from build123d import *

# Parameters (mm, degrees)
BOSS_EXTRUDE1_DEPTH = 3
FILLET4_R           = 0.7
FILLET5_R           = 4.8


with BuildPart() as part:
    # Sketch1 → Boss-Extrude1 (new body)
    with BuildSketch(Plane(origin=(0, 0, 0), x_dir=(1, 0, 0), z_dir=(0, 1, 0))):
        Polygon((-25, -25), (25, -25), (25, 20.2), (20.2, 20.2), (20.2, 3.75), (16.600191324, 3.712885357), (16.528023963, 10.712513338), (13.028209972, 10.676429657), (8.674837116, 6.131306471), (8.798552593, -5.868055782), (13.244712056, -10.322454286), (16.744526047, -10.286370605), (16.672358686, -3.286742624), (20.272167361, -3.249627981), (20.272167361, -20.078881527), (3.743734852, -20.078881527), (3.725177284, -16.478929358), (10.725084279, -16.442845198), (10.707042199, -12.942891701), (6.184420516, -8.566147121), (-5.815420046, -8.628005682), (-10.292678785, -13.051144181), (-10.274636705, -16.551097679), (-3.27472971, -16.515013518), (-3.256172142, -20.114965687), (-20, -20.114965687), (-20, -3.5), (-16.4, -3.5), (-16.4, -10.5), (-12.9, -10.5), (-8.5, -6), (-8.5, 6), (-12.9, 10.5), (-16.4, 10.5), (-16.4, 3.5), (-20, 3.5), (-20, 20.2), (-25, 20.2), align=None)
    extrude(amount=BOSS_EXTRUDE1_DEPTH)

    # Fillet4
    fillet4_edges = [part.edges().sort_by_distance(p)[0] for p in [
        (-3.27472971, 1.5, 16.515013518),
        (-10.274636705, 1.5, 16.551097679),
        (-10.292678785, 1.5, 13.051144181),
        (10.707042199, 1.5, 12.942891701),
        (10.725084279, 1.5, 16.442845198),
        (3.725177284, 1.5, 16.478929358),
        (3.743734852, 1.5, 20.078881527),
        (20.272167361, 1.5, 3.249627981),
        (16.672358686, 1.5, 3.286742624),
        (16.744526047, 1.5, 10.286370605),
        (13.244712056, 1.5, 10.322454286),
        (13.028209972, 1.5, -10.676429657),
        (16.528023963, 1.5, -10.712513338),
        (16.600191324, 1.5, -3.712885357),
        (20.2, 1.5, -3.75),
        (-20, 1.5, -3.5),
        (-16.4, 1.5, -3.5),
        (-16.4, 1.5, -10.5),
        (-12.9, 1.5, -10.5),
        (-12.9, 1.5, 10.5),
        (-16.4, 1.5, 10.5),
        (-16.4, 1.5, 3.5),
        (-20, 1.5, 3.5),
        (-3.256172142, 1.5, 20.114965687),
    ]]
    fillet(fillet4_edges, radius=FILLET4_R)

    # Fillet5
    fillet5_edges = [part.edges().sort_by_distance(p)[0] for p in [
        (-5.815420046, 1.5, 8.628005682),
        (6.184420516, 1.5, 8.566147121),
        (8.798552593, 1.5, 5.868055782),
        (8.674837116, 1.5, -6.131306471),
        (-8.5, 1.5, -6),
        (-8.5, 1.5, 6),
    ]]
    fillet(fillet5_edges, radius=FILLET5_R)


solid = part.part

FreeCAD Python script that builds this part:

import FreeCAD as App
import Part
import Sketcher
Q = App.Units.Quantity


def edges_at(feature, points):
    """Names of the edges that pass closest to the given points."""
    edges = feature.Shape.Edges
    near = lambda p: min(range(len(edges)), key=lambda i: edges[i].distToShape(Part.Vertex(*p))[0])
    return sorted({f"Edge{near(p) + 1}" for p in points})

doc = App.newDocument("Part")
body = doc.addObject("PartDesign::Body", "Body")

sketch1 = body.newObject("Sketcher::SketchObject", "Sketch")
sketch1.AttachmentSupport = (doc.getObject("XZ_Plane"), [""])
sketch1.MapMode = "FlatFace"
sketch1.addGeometry(Part.LineSegment(App.Vector(-25, 25, 0), App.Vector(25, 25, 0)), False)
sketch1.addGeometry(Part.LineSegment(App.Vector(25, 25, 0), App.Vector(25, -20.2, 0)), False)
sketch1.addGeometry(Part.LineSegment(App.Vector(25, -20.2, 0), App.Vector(20.2, -20.2, 0)), False)
sketch1.addGeometry(Part.LineSegment(App.Vector(20.2, -20.2, 0), App.Vector(20.2, -3.8, 0)), False)
sketch1.addGeometry(Part.LineSegment(App.Vector(20.2, -3.8, 0), App.Vector(16.6, -3.7, 0)), False)
sketch1.addGeometry(Part.LineSegment(App.Vector(16.6, -3.7, 0), App.Vector(16.5, -10.7, 0)), False)
sketch1.addGeometry(Part.LineSegment(App.Vector(16.5, -10.7, 0), App.Vector(13, -10.7, 0)), False)
sketch1.addGeometry(Part.LineSegment(App.Vector(13, -10.7, 0), App.Vector(8.7, -6.1, 0)), False)
sketch1.addGeometry(Part.LineSegment(App.Vector(8.7, -6.1, 0), App.Vector(8.8, 5.9, 0)), False)
sketch1.addGeometry(Part.LineSegment(App.Vector(8.8, 5.9, 0), App.Vector(13.2, 10.3, 0)), False)
sketch1.addGeometry(Part.LineSegment(App.Vector(13.2, 10.3, 0), App.Vector(16.7, 10.3, 0)), False)
sketch1.addGeometry(Part.LineSegment(App.Vector(16.7, 10.3, 0), App.Vector(16.7, 3.3, 0)), False)
sketch1.addGeometry(Part.LineSegment(App.Vector(16.7, 3.3, 0), App.Vector(20.3, 3.2, 0)), False)
sketch1.addGeometry(Part.LineSegment(App.Vector(20.3, 3.2, 0), App.Vector(20.3, 20.1, 0)), False)
sketch1.addGeometry(Part.LineSegment(App.Vector(20.3, 20.1, 0), App.Vector(3.7, 20.1, 0)), False)
sketch1.addGeometry(Part.LineSegment(App.Vector(3.7, 20.1, 0), App.Vector(3.7, 16.5, 0)), False)
sketch1.addGeometry(Part.LineSegment(App.Vector(3.7, 16.5, 0), App.Vector(10.7, 16.4, 0)), False)
sketch1.addGeometry(Part.LineSegment(App.Vector(10.7, 16.4, 0), App.Vector(10.7, 12.9, 0)), False)
sketch1.addGeometry(Part.LineSegment(App.Vector(10.7, 12.9, 0), App.Vector(6.2, 8.6, 0)), False)
sketch1.addGeometry(Part.LineSegment(App.Vector(6.2, 8.6, 0), App.Vector(-5.8, 8.6, 0)), False)
sketch1.addGeometry(Part.LineSegment(App.Vector(-5.8, 8.6, 0), App.Vector(-10.3, 13.1, 0)), False)
sketch1.addGeometry(Part.LineSegment(App.Vector(-10.3, 13.1, 0), App.Vector(-10.3, 16.6, 0)), False)
sketch1.addGeometry(Part.LineSegment(App.Vector(-10.3, 16.6, 0), App.Vector(-3.3, 16.5, 0)), False)
sketch1.addGeometry(Part.LineSegment(App.Vector(-3.3, 16.5, 0), App.Vector(-3.3, 20.1, 0)), False)
sketch1.addGeometry(Part.LineSegment(App.Vector(-3.3, 20.1, 0), App.Vector(-20, 20.1, 0)), False)
sketch1.addGeometry(Part.LineSegment(App.Vector(-20, 20.1, 0), App.Vector(-20, 3.5, 0)), False)
sketch1.addGeometry(Part.LineSegment(App.Vector(-20, 3.5, 0), App.Vector(-16.4, 3.5, 0)), False)
sketch1.addGeometry(Part.LineSegment(App.Vector(-16.4, 3.5, 0), App.Vector(-16.4, 10.5, 0)), False)
sketch1.addGeometry(Part.LineSegment(App.Vector(-16.4, 10.5, 0), App.Vector(-12.9, 10.5, 0)), False)
sketch1.addGeometry(Part.LineSegment(App.Vector(-12.9, 10.5, 0), App.Vector(-8.5, 6, 0)), False)
sketch1.addGeometry(Part.LineSegment(App.Vector(-8.5, 6, 0), App.Vector(-8.5, -6, 0)), False)
sketch1.addGeometry(Part.LineSegment(App.Vector(-8.5, -6, 0), App.Vector(-12.9, -10.5, 0)), False)
sketch1.addGeometry(Part.LineSegment(App.Vector(-12.9, -10.5, 0), App.Vector(-16.4, -10.5, 0)), False)
sketch1.addGeometry(Part.LineSegment(App.Vector(-16.4, -10.5, 0), App.Vector(-16.4, -3.5, 0)), False)
sketch1.addGeometry(Part.LineSegment(App.Vector(-16.4, -3.5, 0), App.Vector(-20, -3.5, 0)), False)
sketch1.addGeometry(Part.LineSegment(App.Vector(-20, -3.5, 0), App.Vector(-20, -20.2, 0)), False)
sketch1.addGeometry(Part.LineSegment(App.Vector(-20, -20.2, 0), App.Vector(-25, -20.2, 0)), False)
sketch1.addGeometry(Part.LineSegment(App.Vector(-25, -20.2, 0), App.Vector(-25, 25, 0)), False)
sketch1.addConstraint(Sketcher.Constraint("Coincident", 0, 2, 1, 1))
sketch1.addConstraint(Sketcher.Constraint("Coincident", 1, 2, 2, 1))
sketch1.addConstraint(Sketcher.Constraint("Coincident", 2, 2, 3, 1))
sketch1.addConstraint(Sketcher.Constraint("Coincident", 3, 2, 4, 1))
sketch1.addConstraint(Sketcher.Constraint("Coincident", 4, 2, 5, 1))
sketch1.addConstraint(Sketcher.Constraint("Coincident", 5, 2, 6, 1))
sketch1.addConstraint(Sketcher.Constraint("Coincident", 6, 2, 7, 1))
sketch1.addConstraint(Sketcher.Constraint("Coincident", 7, 2, 8, 1))
sketch1.addConstraint(Sketcher.Constraint("Coincident", 8, 2, 9, 1))
sketch1.addConstraint(Sketcher.Constraint("Coincident", 9, 2, 10, 1))
sketch1.addConstraint(Sketcher.Constraint("Coincident", 10, 2, 11, 1))
sketch1.addConstraint(Sketcher.Constraint("Coincident", 11, 2, 12, 1))
sketch1.addConstraint(Sketcher.Constraint("Coincident", 12, 2, 13, 1))
sketch1.addConstraint(Sketcher.Constraint("Coincident", 13, 2, 14, 1))
sketch1.addConstraint(Sketcher.Constraint("Coincident", 14, 2, 15, 1))
sketch1.addConstraint(Sketcher.Constraint("Coincident", 15, 2, 16, 1))
sketch1.addConstraint(Sketcher.Constraint("Coincident", 16, 2, 17, 1))
sketch1.addConstraint(Sketcher.Constraint("Coincident", 17, 2, 18, 1))
sketch1.addConstraint(Sketcher.Constraint("Coincident", 18, 2, 19, 1))
sketch1.addConstraint(Sketcher.Constraint("Coincident", 19, 2, 20, 1))
sketch1.addConstraint(Sketcher.Constraint("Coincident", 20, 2, 21, 1))
sketch1.addConstraint(Sketcher.Constraint("Coincident", 21, 2, 22, 1))
sketch1.addConstraint(Sketcher.Constraint("Coincident", 22, 2, 23, 1))
sketch1.addConstraint(Sketcher.Constraint("Coincident", 23, 2, 24, 1))
sketch1.addConstraint(Sketcher.Constraint("Coincident", 24, 2, 25, 1))
sketch1.addConstraint(Sketcher.Constraint("Coincident", 25, 2, 26, 1))
sketch1.addConstraint(Sketcher.Constraint("Coincident", 26, 2, 27, 1))
sketch1.addConstraint(Sketcher.Constraint("Coincident", 27, 2, 28, 1))
sketch1.addConstraint(Sketcher.Constraint("Coincident", 28, 2, 29, 1))
sketch1.addConstraint(Sketcher.Constraint("Coincident", 29, 2, 30, 1))
sketch1.addConstraint(Sketcher.Constraint("Coincident", 30, 2, 31, 1))
sketch1.addConstraint(Sketcher.Constraint("Coincident", 31, 2, 32, 1))
sketch1.addConstraint(Sketcher.Constraint("Coincident", 32, 2, 33, 1))
sketch1.addConstraint(Sketcher.Constraint("Coincident", 33, 2, 34, 1))
sketch1.addConstraint(Sketcher.Constraint("Coincident", 34, 2, 35, 1))
sketch1.addConstraint(Sketcher.Constraint("Coincident", 35, 2, 36, 1))
sketch1.addConstraint(Sketcher.Constraint("Coincident", 36, 2, 37, 1))
sketch1.addConstraint(Sketcher.Constraint("Coincident", 37, 2, 0, 1))
sketch1.addConstraint(Sketcher.Constraint("Horizontal", 0))
sketch1.addConstraint(Sketcher.Constraint("Vertical", 1))
sketch1.addConstraint(Sketcher.Constraint("Horizontal", 2))
sketch1.addConstraint(Sketcher.Constraint("Vertical", 3))
sketch1.addConstraint(Sketcher.Constraint("Vertical", 13))
sketch1.addConstraint(Sketcher.Constraint("Horizontal", 14))
sketch1.addConstraint(Sketcher.Constraint("Horizontal", 24))
sketch1.addConstraint(Sketcher.Constraint("Vertical", 25))
sketch1.addConstraint(Sketcher.Constraint("Horizontal", 26))
sketch1.addConstraint(Sketcher.Constraint("Vertical", 27))
sketch1.addConstraint(Sketcher.Constraint("Horizontal", 28))
sketch1.addConstraint(Sketcher.Constraint("Vertical", 30))
sketch1.addConstraint(Sketcher.Constraint("Horizontal", 32))
sketch1.addConstraint(Sketcher.Constraint("Vertical", 33))
sketch1.addConstraint(Sketcher.Constraint("Horizontal", 34))
sketch1.addConstraint(Sketcher.Constraint("Vertical", 35))
sketch1.addConstraint(Sketcher.Constraint("Horizontal", 36))
sketch1.addConstraint(Sketcher.Constraint("Vertical", 37))
sketch1.addConstraint(Sketcher.Constraint("Symmetric", 1, 2, 36, 2, -2))
sketch1.addConstraint(Sketcher.Constraint("Symmetric", 28, 2, 31, 2, -1))
sketch1.addConstraint(Sketcher.Constraint("Symmetric", 26, 2, 33, 2, -1))
sketch1.addConstraint(Sketcher.Constraint("Perpendicular", 4, 5))
sketch1.addConstraint(Sketcher.Constraint("Perpendicular", 5, 6))
sketch1.addConstraint(Sketcher.Constraint("Perpendicular", 6, 8))
sketch1.addConstraint(Sketcher.Constraint("Perpendicular", 8, 10))
sketch1.addConstraint(Sketcher.Constraint("Perpendicular", 10, 11))
sketch1.addConstraint(Sketcher.Constraint("Perpendicular", 11, 12))
sketch1.addConstraint(Sketcher.Constraint("Perpendicular", 15, 16))
sketch1.addConstraint(Sketcher.Constraint("Perpendicular", 16, 17))
sketch1.addConstraint(Sketcher.Constraint("Perpendicular", 17, 19))
sketch1.addConstraint(Sketcher.Constraint("Perpendicular", 19, 21))
sketch1.addConstraint(Sketcher.Constraint("Perpendicular", 21, 22))
sketch1.addConstraint(Sketcher.Constraint("Perpendicular", 22, 23))
sketch1.addConstraint(Sketcher.Constraint("Vertical", 25, 2, 34, 2))
sketch1.addConstraint(Sketcher.Constraint("Equal", 7, 9))
sketch1.addConstraint(Sketcher.Constraint("Equal", 6, 10))
sketch1.addConstraint(Sketcher.Constraint("Equal", 5, 11))
sketch1.addConstraint(Sketcher.Constraint("Equal", 4, 12))
sketch1.addConstraint(Sketcher.Constraint("Equal", 12, 15))
sketch1.addConstraint(Sketcher.Constraint("Equal", 11, 16))
sketch1.addConstraint(Sketcher.Constraint("Equal", 10, 17))
sketch1.addConstraint(Sketcher.Constraint("Equal", 9, 18))
sketch1.addConstraint(Sketcher.Constraint("Equal", 8, 19))
sketch1.addConstraint(Sketcher.Constraint("Equal", 18, 20))
sketch1.addConstraint(Sketcher.Constraint("Equal", 17, 21))
sketch1.addConstraint(Sketcher.Constraint("Equal", 16, 22))
sketch1.addConstraint(Sketcher.Constraint("Equal", 15, 23))
sketch1.addConstraint(Sketcher.Constraint("Equal", 20, 29))
sketch1.addConstraint(Sketcher.Constraint("Equal", 29, 31))
sketch1.addConstraint(Sketcher.Constraint("DistanceX", 0, 1, 0, 2, Q("50 mm")))
sketch1.addConstraint(Sketcher.Constraint("DistanceX", 36, 2, 36, 1, Q("5 mm")))
sketch1.addConstraint(Sketcher.Constraint("DistanceY", 27, 1, 27, 2, Q("7 mm")))
sketch1.addConstraint(Sketcher.Constraint("DistanceY", 30, 2, 30, 1, Q("12 mm")))
sketch1.addConstraint(Sketcher.Constraint("Distance", 5, Q("7 mm")))
sketch1.addConstraint(Sketcher.Constraint("Distance", 8, Q("12 mm")))
sketch1.addConstraint(Sketcher.Constraint("DistanceX", 2, 2, 2, 1, Q("4.8 mm")))
sketch1.addConstraint(Sketcher.Constraint("DistanceX", 26, 1, 26, 2, Q("3.6 mm")))
sketch1.addConstraint(Sketcher.Constraint("DistanceX", 28, 1, 28, 2, Q("3.5 mm")))
sketch1.addConstraint(Sketcher.Constraint("DistanceY", 1, 2, 1, 1, Q("45.2 mm")))
sketch1.addConstraint(Sketcher.Constraint("DistanceY", 35, 2, 35, 1, Q("16.7 mm")))
sketch1.addConstraint(Sketcher.Constraint("DistanceY", -1, 1, 0, 2, Q("25 mm")))
sketch1.addConstraint(Sketcher.Constraint("Distance", 4, Q("3.6 mm")))
sketch1.addConstraint(Sketcher.Constraint("Distance", 6, Q("3.5 mm")))
sketch1.addConstraint(Sketcher.Constraint("DistanceY", 3, 1, 3, 2, Q("16.45 mm")))
sketch1.addConstraint(Sketcher.Constraint("DistanceX", 29, 2, -1, 1, Q("8.5 mm")))
sketch1.addConstraint(Sketcher.Constraint("DistanceY", 8, 2, 9, 2, Q("4.454399 mm")))
sketch1.addConstraint(Sketcher.Constraint("DistanceY", 18, 2, 16, 2, Q("7.876698 mm")))
sketch1.addConstraint(Sketcher.Constraint("DistanceX", 20, 2, 18, 2, Q("16.477099 mm")))
sketch1.addConstraint(Sketcher.Constraint("DistanceX", 14, 2, 14, 1, Q("16.528433 mm")))
sketch1.addConstraint(Sketcher.Constraint("DistanceX", 24, 2, 24, 1, Q("16.743828 mm")))
sketch1.addConstraint(Sketcher.Constraint("DistanceY", 13, 1, 13, 2, Q("16.829254 mm")))
sketch1.addConstraint(Sketcher.Constraint("DistanceY", 25, 2, 25, 1, Q("16.614966 mm")))
sketch1.addConstraint(Sketcher.Constraint("DistanceX", -1, 1, 6, 2, Q("13.02821 mm")))
pad1 = body.newObject("PartDesign::Pad", "Pad")
pad1.Profile = sketch1
pad1.Length = 3
pad1.Reversed = True
doc.recompute()

fillet = body.newObject("PartDesign::Fillet", "Fillet")
fillet.Base = (pad1, edges_at(pad1, [
    (-3.275, 1.5, 16.515),
    (-10.275, 1.5, 16.551),
    (-10.293, 1.5, 13.051),
    (10.707, 1.5, 12.943),
    (10.725, 1.5, 16.443),
    (3.725, 1.5, 16.479),
    (3.744, 1.5, 20.079),
    (20.272, 1.5, 3.25),
    (16.672, 1.5, 3.287),
    (16.745, 1.5, 10.286),
    (13.245, 1.5, 10.322),
    (13.028, 1.5, -10.676),
    (16.528, 1.5, -10.713),
    (16.6, 1.5, -3.713),
    (20.2, 1.5, -3.75),
    (-20, 1.5, -3.5),
    (-16.4, 1.5, -3.5),
    (-16.4, 1.5, -10.5),
    (-12.9, 1.5, -10.5),
    (-12.9, 1.5, 10.5),
    (-16.4, 1.5, 10.5),
    (-16.4, 1.5, 3.5),
    (-20, 1.5, 3.5),
    (-3.256, 1.5, 20.115),
]))
fillet.Radius = 0.7
doc.recompute()

fillet2 = body.newObject("PartDesign::Fillet", "Fillet001")
fillet2.Base = (fillet, edges_at(fillet, [
    (-5.815, 1.5, 8.628),
    (6.184, 1.5, 8.566),
    (8.799, 1.5, 5.868),
    (8.675, 1.5, -6.131),
    (-8.5, 1.5, -6),
    (-8.5, 1.5, 6),
]))
fillet2.Radius = 4.8

doc.recompute()
